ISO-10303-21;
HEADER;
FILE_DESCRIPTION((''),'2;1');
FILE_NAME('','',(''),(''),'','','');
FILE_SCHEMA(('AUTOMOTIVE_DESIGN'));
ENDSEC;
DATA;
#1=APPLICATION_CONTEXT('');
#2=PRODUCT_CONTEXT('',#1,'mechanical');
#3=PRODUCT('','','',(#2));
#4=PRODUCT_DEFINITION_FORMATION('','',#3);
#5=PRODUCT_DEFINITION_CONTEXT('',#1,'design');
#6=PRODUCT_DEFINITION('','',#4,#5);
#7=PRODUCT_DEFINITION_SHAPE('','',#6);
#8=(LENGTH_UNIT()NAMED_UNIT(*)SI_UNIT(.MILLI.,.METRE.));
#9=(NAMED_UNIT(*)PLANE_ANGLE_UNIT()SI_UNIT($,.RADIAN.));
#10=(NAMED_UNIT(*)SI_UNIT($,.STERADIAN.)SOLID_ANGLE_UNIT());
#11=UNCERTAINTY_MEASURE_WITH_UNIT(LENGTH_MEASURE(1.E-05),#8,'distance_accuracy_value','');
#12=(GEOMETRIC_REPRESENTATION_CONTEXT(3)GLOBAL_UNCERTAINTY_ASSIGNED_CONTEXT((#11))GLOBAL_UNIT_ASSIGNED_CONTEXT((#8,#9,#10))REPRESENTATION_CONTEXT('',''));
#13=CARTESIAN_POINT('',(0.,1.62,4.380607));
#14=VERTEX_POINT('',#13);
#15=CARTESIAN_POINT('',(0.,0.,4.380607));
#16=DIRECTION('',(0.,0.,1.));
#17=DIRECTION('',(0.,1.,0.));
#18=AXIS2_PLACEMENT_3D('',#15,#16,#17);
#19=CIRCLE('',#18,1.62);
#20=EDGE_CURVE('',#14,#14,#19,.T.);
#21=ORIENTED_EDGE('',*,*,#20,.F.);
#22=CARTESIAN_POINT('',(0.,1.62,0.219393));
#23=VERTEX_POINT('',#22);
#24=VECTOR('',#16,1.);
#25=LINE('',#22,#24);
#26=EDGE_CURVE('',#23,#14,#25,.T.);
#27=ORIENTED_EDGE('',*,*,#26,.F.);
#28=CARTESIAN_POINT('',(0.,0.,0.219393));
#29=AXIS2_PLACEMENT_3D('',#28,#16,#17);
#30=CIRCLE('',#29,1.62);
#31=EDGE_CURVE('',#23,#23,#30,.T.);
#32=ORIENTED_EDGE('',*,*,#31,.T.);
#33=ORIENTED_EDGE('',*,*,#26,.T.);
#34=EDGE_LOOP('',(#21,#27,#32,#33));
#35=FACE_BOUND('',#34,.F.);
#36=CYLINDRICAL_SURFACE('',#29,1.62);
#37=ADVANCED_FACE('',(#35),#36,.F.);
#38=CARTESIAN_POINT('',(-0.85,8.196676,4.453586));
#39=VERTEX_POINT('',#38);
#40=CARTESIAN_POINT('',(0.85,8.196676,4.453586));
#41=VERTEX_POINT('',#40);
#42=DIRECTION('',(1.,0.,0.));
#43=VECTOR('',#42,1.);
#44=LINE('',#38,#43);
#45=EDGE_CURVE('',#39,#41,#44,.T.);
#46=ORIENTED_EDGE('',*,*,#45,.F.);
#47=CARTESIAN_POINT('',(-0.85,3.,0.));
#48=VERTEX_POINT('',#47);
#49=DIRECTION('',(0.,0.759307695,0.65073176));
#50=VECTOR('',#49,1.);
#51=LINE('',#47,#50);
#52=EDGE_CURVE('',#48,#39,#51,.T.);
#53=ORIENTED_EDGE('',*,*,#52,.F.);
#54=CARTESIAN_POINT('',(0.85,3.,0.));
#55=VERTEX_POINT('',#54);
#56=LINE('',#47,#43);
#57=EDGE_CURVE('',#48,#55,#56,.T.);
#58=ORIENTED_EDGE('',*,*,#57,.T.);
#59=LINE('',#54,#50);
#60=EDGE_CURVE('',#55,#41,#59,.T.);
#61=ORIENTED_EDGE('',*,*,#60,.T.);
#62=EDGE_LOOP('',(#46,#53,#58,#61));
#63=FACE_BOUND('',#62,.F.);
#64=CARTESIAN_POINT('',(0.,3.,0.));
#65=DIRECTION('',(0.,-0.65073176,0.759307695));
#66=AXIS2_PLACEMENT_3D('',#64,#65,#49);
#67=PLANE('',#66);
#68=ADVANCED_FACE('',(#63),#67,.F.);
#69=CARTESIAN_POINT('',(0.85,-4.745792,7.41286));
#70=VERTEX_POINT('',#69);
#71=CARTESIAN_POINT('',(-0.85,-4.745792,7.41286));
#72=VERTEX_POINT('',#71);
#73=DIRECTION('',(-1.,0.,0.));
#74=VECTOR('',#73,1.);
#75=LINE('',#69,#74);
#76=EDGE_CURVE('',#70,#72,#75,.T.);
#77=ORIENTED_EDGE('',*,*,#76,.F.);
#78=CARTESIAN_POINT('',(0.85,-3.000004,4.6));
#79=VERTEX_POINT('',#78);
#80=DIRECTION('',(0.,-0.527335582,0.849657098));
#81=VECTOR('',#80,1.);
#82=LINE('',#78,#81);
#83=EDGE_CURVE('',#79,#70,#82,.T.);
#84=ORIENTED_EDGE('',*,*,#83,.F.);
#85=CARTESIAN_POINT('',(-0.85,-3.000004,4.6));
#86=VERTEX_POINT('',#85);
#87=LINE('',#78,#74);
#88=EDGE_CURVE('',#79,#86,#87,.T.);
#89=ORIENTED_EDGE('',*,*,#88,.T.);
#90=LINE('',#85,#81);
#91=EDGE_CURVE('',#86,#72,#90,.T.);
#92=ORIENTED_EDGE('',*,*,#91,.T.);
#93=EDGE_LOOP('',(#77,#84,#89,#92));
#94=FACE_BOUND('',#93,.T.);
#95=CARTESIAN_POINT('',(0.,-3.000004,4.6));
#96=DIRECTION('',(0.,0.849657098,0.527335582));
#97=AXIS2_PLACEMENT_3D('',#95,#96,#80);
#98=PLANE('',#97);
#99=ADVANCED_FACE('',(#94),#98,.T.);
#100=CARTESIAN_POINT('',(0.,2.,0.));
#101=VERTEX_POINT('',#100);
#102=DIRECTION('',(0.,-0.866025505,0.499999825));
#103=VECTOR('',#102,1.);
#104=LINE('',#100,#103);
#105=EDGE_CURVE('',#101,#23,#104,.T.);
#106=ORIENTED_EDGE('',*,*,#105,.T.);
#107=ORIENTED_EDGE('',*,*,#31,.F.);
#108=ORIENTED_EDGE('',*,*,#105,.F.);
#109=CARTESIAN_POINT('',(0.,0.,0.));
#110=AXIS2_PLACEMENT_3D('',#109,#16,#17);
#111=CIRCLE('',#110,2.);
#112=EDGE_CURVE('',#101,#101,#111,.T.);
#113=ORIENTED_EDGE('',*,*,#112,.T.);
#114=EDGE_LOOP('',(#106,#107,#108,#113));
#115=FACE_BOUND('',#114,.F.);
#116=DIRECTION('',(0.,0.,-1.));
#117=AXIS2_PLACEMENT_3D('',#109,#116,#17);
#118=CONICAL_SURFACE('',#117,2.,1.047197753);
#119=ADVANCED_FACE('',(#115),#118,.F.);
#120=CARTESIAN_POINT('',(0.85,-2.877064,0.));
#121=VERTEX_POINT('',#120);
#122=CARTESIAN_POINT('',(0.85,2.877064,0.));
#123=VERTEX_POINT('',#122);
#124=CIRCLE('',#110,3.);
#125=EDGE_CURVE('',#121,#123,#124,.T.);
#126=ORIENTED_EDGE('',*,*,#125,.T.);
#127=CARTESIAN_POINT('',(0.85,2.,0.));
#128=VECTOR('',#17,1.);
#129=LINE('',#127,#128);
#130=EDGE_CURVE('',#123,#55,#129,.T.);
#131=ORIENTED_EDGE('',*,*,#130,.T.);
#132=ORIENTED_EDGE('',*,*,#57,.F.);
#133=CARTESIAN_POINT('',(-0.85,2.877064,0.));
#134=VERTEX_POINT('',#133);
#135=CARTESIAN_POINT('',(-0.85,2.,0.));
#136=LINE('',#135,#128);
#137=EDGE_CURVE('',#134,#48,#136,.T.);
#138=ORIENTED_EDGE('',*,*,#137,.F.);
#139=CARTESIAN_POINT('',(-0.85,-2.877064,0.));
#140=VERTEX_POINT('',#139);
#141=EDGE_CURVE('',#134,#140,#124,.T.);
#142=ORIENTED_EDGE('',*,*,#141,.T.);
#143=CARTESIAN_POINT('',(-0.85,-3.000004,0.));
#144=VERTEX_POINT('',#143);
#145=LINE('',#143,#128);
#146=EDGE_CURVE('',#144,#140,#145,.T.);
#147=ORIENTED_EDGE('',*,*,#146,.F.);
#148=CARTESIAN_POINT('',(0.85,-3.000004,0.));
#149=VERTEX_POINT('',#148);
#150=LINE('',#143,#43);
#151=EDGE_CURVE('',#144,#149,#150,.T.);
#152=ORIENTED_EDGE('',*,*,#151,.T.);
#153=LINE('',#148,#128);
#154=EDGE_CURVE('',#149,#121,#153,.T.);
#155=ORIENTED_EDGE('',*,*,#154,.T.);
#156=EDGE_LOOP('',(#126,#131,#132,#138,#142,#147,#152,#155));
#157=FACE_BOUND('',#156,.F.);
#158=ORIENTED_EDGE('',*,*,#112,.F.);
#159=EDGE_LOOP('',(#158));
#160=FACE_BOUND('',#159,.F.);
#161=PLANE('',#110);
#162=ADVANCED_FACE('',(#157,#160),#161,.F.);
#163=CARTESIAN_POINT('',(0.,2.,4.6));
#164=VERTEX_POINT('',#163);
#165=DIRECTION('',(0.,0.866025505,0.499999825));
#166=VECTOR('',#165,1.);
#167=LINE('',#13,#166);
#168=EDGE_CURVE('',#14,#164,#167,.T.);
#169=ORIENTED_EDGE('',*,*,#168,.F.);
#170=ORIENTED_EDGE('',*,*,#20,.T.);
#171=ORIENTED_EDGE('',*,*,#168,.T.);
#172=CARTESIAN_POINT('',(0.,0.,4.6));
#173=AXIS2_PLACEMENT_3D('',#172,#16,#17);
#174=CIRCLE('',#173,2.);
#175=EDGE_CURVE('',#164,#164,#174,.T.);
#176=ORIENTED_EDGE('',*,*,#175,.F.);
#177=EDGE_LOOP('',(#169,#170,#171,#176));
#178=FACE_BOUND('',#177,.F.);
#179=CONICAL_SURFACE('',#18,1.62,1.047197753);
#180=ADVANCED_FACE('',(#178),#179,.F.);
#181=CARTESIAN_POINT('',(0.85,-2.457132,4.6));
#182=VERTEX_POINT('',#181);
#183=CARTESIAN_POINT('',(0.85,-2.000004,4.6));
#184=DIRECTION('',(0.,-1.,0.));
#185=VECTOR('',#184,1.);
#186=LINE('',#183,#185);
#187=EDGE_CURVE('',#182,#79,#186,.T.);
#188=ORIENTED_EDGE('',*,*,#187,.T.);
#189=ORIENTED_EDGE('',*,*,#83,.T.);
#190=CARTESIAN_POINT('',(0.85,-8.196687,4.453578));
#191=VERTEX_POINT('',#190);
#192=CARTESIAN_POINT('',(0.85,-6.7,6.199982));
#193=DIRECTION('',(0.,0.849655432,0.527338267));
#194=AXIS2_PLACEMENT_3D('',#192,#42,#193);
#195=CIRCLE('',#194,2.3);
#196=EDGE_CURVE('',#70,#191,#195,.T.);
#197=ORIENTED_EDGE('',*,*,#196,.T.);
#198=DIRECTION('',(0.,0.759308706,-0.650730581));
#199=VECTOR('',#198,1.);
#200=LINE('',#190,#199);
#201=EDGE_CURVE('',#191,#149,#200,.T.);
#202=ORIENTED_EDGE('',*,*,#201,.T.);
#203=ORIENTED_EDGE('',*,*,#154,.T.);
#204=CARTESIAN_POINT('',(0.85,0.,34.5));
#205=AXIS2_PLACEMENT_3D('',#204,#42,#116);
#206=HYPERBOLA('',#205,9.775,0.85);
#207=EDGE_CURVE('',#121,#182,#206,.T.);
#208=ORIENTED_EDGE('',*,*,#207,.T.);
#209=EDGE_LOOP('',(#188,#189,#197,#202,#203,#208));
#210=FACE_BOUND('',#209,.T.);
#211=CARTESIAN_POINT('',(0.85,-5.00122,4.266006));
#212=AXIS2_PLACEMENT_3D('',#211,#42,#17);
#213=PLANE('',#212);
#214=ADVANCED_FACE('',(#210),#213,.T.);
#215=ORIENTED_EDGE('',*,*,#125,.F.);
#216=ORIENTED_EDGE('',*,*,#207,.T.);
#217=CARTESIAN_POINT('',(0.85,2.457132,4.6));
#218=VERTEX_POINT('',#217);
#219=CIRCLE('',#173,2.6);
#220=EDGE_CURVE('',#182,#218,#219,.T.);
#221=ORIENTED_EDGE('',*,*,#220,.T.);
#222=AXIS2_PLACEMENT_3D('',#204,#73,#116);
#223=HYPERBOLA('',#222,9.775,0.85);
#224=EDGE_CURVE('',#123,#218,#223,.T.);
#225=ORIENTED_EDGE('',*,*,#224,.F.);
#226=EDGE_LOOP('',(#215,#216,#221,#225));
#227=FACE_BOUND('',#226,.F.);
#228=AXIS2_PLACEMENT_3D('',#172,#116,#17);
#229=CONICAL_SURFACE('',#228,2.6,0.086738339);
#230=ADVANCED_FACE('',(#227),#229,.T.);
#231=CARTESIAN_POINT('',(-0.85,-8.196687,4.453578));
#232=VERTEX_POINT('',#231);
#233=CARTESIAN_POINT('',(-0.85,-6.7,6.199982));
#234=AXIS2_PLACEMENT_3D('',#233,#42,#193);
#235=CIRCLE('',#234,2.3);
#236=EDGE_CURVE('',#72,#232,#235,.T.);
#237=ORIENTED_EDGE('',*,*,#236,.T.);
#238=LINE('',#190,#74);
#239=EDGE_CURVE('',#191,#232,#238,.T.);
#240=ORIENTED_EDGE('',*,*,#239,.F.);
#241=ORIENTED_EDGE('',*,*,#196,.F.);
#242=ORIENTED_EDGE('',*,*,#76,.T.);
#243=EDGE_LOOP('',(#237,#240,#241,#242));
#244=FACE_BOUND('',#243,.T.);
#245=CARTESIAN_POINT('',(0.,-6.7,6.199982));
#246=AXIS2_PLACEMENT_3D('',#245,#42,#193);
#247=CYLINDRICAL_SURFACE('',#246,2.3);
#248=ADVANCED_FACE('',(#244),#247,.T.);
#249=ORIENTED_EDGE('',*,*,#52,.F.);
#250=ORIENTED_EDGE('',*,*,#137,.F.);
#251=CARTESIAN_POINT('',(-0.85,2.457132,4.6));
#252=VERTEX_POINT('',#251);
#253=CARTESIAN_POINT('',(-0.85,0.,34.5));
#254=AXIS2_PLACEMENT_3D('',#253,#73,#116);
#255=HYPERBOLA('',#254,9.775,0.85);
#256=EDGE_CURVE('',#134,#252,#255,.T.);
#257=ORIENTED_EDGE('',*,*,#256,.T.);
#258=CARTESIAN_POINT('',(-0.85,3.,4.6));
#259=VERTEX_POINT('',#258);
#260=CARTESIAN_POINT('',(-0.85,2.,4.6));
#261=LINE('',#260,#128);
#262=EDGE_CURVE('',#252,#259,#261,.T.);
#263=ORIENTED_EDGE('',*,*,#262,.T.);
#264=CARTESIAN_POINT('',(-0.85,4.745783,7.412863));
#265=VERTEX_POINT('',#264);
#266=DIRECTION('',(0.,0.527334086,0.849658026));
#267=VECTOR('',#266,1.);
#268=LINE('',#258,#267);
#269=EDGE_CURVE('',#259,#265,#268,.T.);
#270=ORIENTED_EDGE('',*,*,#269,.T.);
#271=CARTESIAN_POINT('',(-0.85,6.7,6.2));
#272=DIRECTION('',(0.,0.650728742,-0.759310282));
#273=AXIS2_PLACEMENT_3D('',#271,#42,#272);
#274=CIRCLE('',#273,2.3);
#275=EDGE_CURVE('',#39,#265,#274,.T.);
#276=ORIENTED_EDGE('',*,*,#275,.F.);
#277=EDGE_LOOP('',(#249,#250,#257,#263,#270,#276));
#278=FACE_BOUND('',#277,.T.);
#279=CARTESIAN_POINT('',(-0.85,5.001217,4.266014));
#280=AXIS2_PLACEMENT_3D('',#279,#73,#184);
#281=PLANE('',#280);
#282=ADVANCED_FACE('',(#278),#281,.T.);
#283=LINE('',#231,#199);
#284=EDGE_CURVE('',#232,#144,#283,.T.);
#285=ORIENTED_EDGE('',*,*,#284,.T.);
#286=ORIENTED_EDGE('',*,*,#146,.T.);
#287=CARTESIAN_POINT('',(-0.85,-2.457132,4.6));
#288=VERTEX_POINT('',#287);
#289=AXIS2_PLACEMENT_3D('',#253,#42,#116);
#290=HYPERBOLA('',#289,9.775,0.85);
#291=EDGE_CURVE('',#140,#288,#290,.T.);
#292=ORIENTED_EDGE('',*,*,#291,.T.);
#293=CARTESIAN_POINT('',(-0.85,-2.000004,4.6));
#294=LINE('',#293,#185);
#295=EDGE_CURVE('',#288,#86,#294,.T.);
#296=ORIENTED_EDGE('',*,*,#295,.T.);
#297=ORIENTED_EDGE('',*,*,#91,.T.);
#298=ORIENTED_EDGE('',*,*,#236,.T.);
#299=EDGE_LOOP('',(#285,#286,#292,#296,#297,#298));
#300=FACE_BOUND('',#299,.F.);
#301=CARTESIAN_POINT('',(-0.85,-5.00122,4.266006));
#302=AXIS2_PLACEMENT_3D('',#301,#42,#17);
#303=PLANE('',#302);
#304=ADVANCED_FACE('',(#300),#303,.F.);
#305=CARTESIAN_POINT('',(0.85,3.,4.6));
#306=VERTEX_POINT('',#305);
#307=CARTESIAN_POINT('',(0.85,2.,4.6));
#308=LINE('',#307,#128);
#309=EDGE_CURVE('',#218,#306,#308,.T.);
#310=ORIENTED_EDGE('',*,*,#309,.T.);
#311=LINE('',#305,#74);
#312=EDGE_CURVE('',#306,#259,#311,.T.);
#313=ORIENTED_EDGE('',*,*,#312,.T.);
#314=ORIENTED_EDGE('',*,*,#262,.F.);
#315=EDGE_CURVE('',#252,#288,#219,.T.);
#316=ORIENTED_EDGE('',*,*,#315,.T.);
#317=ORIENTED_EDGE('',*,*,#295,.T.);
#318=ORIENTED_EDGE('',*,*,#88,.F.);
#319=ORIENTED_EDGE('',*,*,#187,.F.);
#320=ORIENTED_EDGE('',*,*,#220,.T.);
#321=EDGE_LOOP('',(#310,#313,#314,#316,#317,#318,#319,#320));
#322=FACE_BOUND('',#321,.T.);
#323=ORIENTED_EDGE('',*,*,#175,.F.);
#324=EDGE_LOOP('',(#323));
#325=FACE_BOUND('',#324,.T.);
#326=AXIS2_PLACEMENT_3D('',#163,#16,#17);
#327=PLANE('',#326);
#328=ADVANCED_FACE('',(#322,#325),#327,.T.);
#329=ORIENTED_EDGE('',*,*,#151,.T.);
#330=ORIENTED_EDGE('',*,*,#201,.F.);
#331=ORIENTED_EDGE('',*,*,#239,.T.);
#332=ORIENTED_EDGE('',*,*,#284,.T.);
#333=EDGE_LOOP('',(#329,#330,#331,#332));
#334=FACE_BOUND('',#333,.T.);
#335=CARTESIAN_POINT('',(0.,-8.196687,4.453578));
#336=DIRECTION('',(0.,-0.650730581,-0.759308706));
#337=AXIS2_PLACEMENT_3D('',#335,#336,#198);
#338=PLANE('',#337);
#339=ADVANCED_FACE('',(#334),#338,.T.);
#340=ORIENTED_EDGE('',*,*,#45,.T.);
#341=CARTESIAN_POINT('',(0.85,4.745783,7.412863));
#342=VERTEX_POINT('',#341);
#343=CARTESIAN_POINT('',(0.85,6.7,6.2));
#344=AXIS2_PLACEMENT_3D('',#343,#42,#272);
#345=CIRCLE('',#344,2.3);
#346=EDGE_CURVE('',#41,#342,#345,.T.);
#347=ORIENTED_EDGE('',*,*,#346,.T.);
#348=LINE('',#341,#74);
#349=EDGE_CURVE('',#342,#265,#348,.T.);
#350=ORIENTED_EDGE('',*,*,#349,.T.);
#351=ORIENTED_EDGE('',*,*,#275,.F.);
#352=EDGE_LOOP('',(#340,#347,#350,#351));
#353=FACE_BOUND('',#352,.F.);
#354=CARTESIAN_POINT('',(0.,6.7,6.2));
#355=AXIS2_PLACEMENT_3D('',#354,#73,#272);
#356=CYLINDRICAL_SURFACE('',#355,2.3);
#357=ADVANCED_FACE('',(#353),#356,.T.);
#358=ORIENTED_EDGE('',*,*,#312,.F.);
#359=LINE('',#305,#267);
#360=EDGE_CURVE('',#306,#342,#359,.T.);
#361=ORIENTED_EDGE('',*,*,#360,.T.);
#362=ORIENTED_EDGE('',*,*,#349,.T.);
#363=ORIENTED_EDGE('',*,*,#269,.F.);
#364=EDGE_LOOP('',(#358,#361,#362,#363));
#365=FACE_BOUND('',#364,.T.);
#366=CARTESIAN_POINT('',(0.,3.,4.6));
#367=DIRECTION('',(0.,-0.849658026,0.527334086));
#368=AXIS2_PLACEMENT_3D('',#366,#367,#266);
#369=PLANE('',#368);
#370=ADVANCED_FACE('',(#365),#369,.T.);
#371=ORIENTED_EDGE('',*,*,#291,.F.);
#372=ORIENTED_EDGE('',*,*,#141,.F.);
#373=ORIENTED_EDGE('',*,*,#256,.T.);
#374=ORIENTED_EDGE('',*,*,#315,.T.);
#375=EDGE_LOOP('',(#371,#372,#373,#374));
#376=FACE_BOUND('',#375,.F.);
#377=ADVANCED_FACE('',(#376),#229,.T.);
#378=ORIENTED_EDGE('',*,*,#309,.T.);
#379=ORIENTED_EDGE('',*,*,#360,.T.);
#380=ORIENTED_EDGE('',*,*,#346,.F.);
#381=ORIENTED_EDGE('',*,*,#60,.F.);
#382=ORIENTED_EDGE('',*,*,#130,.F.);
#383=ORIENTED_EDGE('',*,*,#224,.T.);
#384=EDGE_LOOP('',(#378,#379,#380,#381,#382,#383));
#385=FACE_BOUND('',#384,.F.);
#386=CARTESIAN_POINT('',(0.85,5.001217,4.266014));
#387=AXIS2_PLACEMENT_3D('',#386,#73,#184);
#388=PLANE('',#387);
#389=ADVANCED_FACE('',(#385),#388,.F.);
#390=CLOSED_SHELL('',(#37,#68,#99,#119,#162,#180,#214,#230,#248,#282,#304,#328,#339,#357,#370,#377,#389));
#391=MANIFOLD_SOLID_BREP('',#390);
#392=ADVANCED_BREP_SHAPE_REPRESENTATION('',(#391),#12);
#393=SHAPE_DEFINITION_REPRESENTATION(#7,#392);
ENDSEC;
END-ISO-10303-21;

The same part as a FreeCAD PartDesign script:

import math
import FreeCAD as App
import Part
import Sketcher

V = App.Vector
Q = App.Units.Quantity


def add_polygon(sketch, points):
    """Adds a closed chain of lines whose ends are joined by coincident constraints."""
    first, n = sketch.GeometryCount, len(points)
    for a, b in zip(points, points[1:] + points[:1]):
        sketch.addGeometry(Part.LineSegment(App.Vector(*a, 0), App.Vector(*b, 0)), False)
    for i in range(n):
        sketch.addConstraint(Sketcher.Constraint("Coincident", first + i, 2, first + (i + 1) % n, 1))

doc = App.newDocument("Part")
body = doc.addObject("PartDesign::Body", "Body")
body.AllowCompound = True

# Sketch on YZ plane
sketch1 = body.newObject("Sketcher::SketchObject", "Sketch")
sketch1.AttachmentSupport = (doc.getObject("YZ_Plane"), [""])
sketch1.MapMode = "FlatFace"
sketch1.addGeometry([
    Part.LineSegment(V(2, 4.6, 0), V(2, 0, 0)),  # 0
    Part.LineSegment(V(2, 0, 0), V(3, 0, 0)),  # 1
    Part.LineSegment(V(3, 0, 0), V(8.196676, 4.453586, 0)),  # 2
    Part.ArcOfCircle(Part.Circle(V(6.7, 6.2, 0), V(0, 0, 1), 2.3), math.radians(-49.403432), math.radians(148.174647)),  # 3
    Part.LineSegment(V(4.745783, 7.412863, 0), V(3, 4.6, 0)),  # 4
    Part.LineSegment(V(3, 4.6, 0), V(2, 4.6, 0)),  # 5
    Part.LineSegment(V(-8.196687, 4.453578, 0), V(-3.000004, 0, 0)),  # 6
    Part.LineSegment(V(-3.000004, 0, 0), V(-2.000004, 0, 0)),  # 7
    Part.LineSegment(V(-2.000004, 0, 0), V(-2.000004, 4.6, 0)),  # 8
    Part.LineSegment(V(-2.000004, 4.6, 0), V(-3.000004, 4.6, 0)),  # 9
    Part.LineSegment(V(-3.000004, 4.6, 0), V(-4.745792, 7.41286, 0)),  # 10
    Part.ArcOfCircle(Part.Circle(V(-6.7, 6.199982, 0), V(0, 0, 1), 2.3), math.radians(31.825788), math.radians(229.40306)),  # 11
], False)
sketch1.addConstraint([
    Sketcher.Constraint("Coincident", 0, 2, 1, 1),
    Sketcher.Constraint("Coincident", 1, 2, 2, 1),
    Sketcher.Constraint("Coincident", 2, 2, 3, 1),
    Sketcher.Constraint("Coincident", 3, 2, 4, 1),
    Sketcher.Constraint("Coincident", 4, 2, 5, 1),
    Sketcher.Constraint("Coincident", 5, 2, 0, 1),
    Sketcher.Constraint("Coincident", 6, 2, 7, 1),
    Sketcher.Constraint("Coincident", 7, 2, 8, 1),
    Sketcher.Constraint("Coincident", 8, 2, 9, 1),
    Sketcher.Constraint("Coincident", 9, 2, 10, 1),
    Sketcher.Constraint("Coincident", 10, 2, 11, 1),
    Sketcher.Constraint("Coincident", 11, 2, 6, 1),
    Sketcher.Constraint("Vertical", 0),
    Sketcher.Constraint("Horizontal", 1),
    Sketcher.Constraint("Horizontal", 5),
    Sketcher.Constraint("Horizontal", 7),
    Sketcher.Constraint("Vertical", 8),
    Sketcher.Constraint("Horizontal", 9),
    Sketcher.Constraint("PointOnObject", 0, 2, -1),
    Sketcher.Constraint("PointOnObject", 6, 2, -1),
    Sketcher.Constraint("Radius", 3, Q("2.3 mm")),
    Sketcher.Constraint("Radius", 11, Q("2.3 mm")),
    Sketcher.Constraint("DistanceX", 1, 1, 1, 2, Q("1 mm")),
    Sketcher.Constraint("DistanceX", 5, 2, 5, 1, Q("1 mm")),
    Sketcher.Constraint("DistanceX", 7, 1, 7, 2, Q("1 mm")),
    Sketcher.Constraint("DistanceX", 9, 2, 9, 1, Q("1 mm")),
    Sketcher.Constraint("DistanceY", 0, 2, 0, 1, Q("4.6 mm")),
    Sketcher.Constraint("DistanceY", 8, 1, 8, 2, Q("4.6 mm")),
    Sketcher.Constraint("DistanceX", -1, 1, 0, 2, Q("2 mm")),
    Sketcher.Constraint("DistanceX", -1, 1, 3, 3, Q("6.7 mm")),
    Sketcher.Constraint("DistanceY", -1, 1, 3, 3, Q("6.2 mm")),
    Sketcher.Constraint("DistanceX", 11, 3, -1, 1, Q("6.7 mm")),
    Sketcher.Constraint("DistanceY", -1, 1, 11, 3, Q("6.199982 mm")),
    Sketcher.Constraint("DistanceX", 10, 2, -1, 1, Q("4.745792 mm")),
    Sketcher.Constraint("DistanceY", -1, 1, 11, 2, Q("4.453578 mm")),
    Sketcher.Constraint("DistanceY", 11, 3, 3, 2, Q("1.212881 mm")),
    Sketcher.Constraint("Distance", 2, Q("6.843966 mm")),
    Sketcher.Constraint("Distance", 6, Q("6.843966 mm")),
])
pad1 = body.newObject("PartDesign::Pad", "Pad")
pad1.Profile = sketch1
pad1.Length = 1.7
pad1.Midplane = True
body2 = doc.addObject("PartDesign::Body", "Body001")

# Sketch on YZ plane
sketch2 = body2.newObject("Sketcher::SketchObject", "Sketch001")
sketch2.AttachmentSupport = (doc.getObject("YZ_Plane001"), [""])
sketch2.MapMode = "FlatFace"
add_polygon(sketch2, [(1.62, 0.22), (2, 0), (3, 0), (2.6, 4.6), (2, 4.6), (1.62, 4.38)])  # lines 0-5
sketch2.addConstraint([
    Sketcher.Constraint("Horizontal", 1),
    Sketcher.Constraint("Horizontal", 3),
    Sketcher.Constraint("Vertical", 5),
    Sketcher.Constraint("PointOnObject", 0, 2, -1),
    Sketcher.Constraint("Vertical", 0, 2, 3, 2),
    Sketcher.Constraint("Equal", 0, 4),
    Sketcher.Constraint("DistanceX", 1, 1, 1, 2, Q("1 mm")),
    Sketcher.Constraint("Angle", 0, Q("-29.999988 deg")),
    Sketcher.Constraint("DistanceX", 3, 2, 3, 1, Q("0.6 mm")),
    Sketcher.Constraint("DistanceX", -1, 1, 0, 2, Q("2 mm")),
    Sketcher.Constraint("DistanceY", -1, 1, 2, 2, Q("4.6 mm")),
    Sketcher.Constraint("DistanceX", -1, 1, 4, 2, Q("1.62 mm")),
])
revolution = body2.newObject("PartDesign::Revolution", "Revolution")
revolution.Profile = sketch2
revolution.ReferenceAxis = (sketch2, ["V_Axis"])
revolution.Angle = 360
doc.recompute()

boolean = body2.newObject("PartDesign::Boolean", "Boolean")
boolean.Type = "Fuse"
boolean.addObjects([body])

doc.recompute()
